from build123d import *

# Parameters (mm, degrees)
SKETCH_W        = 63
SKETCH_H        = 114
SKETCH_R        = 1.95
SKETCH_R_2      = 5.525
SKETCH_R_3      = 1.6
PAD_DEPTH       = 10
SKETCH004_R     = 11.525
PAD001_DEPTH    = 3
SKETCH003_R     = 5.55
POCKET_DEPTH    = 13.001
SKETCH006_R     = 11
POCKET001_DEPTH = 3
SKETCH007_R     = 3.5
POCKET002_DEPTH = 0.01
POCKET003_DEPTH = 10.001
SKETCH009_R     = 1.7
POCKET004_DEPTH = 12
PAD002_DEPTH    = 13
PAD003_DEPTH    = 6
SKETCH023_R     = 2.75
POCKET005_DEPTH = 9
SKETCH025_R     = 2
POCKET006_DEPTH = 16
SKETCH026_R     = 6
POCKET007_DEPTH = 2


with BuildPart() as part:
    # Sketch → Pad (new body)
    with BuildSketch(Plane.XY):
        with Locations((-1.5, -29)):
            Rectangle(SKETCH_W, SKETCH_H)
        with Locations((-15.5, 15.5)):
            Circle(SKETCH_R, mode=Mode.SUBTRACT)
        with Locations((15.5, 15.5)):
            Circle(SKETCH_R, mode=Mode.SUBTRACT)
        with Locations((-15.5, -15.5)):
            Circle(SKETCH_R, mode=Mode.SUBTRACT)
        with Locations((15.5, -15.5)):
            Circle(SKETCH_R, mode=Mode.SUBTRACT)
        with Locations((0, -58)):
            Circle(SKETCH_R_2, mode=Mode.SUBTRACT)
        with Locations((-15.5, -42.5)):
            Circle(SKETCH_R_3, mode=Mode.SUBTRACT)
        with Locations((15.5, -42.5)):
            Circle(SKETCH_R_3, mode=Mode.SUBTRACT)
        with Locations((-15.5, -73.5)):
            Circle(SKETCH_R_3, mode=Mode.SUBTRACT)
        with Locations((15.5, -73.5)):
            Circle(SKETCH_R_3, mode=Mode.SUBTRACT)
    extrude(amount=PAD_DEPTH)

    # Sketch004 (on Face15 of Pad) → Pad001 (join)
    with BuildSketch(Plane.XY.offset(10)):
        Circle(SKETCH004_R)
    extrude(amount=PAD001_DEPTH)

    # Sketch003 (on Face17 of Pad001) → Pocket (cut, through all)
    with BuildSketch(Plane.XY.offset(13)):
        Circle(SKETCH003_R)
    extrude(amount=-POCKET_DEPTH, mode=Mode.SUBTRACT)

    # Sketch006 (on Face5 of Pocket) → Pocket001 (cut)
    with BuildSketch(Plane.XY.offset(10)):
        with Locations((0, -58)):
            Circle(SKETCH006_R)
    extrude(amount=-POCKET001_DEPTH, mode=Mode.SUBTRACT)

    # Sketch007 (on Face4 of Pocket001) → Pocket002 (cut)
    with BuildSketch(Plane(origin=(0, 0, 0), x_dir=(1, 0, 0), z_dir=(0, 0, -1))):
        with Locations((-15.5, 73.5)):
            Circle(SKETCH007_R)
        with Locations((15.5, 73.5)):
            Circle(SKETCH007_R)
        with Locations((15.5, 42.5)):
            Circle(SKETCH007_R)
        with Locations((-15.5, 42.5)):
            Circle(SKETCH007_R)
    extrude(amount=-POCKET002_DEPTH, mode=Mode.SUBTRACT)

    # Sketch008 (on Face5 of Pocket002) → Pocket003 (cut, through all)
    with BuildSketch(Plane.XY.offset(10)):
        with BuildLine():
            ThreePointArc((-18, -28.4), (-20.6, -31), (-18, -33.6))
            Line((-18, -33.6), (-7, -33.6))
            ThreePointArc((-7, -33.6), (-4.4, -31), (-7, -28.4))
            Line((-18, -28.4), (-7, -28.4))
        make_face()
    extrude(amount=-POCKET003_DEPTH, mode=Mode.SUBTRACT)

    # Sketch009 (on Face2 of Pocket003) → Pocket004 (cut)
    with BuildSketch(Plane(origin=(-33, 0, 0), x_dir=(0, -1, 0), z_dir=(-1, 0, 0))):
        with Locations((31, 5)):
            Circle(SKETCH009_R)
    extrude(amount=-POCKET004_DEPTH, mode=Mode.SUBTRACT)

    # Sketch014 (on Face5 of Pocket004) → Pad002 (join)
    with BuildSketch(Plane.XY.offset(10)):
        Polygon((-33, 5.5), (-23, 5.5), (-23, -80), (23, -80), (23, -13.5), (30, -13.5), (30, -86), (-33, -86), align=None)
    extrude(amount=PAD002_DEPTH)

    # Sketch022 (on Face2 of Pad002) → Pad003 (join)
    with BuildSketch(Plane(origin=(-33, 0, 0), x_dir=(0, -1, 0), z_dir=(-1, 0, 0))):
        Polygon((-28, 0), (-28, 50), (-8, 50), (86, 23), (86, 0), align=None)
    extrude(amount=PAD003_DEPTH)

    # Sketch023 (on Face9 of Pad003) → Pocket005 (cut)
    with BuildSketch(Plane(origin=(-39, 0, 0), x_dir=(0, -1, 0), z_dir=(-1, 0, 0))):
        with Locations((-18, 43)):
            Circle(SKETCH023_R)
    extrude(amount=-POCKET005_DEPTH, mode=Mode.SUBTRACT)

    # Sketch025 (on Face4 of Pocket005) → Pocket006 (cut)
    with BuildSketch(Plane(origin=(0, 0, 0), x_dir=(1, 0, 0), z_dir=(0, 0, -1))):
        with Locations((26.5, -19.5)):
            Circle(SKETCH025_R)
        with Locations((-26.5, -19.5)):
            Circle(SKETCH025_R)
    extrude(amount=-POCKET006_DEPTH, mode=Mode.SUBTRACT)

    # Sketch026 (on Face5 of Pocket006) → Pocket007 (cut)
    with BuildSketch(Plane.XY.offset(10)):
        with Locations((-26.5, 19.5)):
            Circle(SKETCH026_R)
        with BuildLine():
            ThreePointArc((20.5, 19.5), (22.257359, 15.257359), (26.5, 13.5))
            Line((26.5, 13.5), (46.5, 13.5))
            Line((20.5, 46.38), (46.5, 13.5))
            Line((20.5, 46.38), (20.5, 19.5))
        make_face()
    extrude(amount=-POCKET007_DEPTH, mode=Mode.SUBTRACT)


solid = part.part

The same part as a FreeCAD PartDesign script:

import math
import FreeCAD as App
import Part
import Sketcher


def add_polygon(sketch, points):
    """Adds a closed chain of lines whose ends are joined by coincident constraints."""
    first, n = sketch.GeometryCount, len(points)
    for a, b in zip(points, points[1:] + points[:1]):
        sketch.addGeometry(Part.LineSegment(App.Vector(*a, 0), App.Vector(*b, 0)), False)
    for i in range(n):
        sketch.addConstraint(Sketcher.Constraint("Coincident", first + i, 2, first + (i + 1) % n, 1))

doc = App.newDocument("Part")
params = doc.addObject("Spreadsheet::Sheet", "Params")
for row, (alias, value) in enumerate([
    ("sketch1_diameter", "3.2 mm"),
    ("sketch1_diameter2", "3.9 mm"),
    ("sketch1_diameter3", "11.05 mm"),
    ("sketch1_width", "63 mm"),
    ("sketch1_height", "114 mm"),
    ("pad1_length", "10 mm"),
    ("sketch2_diameter", "23.05 mm"),
    ("pad2_length", "3 mm"),
    ("sketch3_diameter", "11.1 mm"),
    ("sketch4_diameter", "22 mm"),
    ("pocket2_length", "3 mm"),
    ("sketch5_diameter", "7 mm"),
    ("pocket3_length", "0.01 mm"),
    ("sketch6_radius", "2.6 mm"),
    ("sketch6_width", "11 mm"),
    ("sketch7_diameter", "3.4 mm"),
    ("pocket5_length", "12 mm"),
    ("sketch8_width", "10 mm"),
    ("sketch8_width2", "63 mm"),
    ("sketch8_width3", "7 mm"),
    ("sketch8_height", "91.5 mm"),
    ("sketch8_height2", "72.5 mm"),
    ("pad3_length", "13 mm"),
    ("sketch9_width", "114 mm"),
    ("sketch9_width2", "20 mm"),
    ("sketch9_height", "50 mm"),
    ("sketch9_height2", "23 mm"),
    ("pad4_length", "6 mm"),
    ("sketch10_diameter", "5.5 mm"),
    ("pocket6_length", "9 mm"),
    ("sketch11_diameter", "4 mm"),
    ("pocket7_length", "16 mm"),
    ("sketch12_diameter", "12 mm"),
    ("sketch12_width", "20 mm"),
    ("sketch12_height", "26.88 mm"),
    ("pocket8_length", "2 mm"),
], start=1):
    params.set(f"A{row}", alias)
    params.set(f"B{row}", "=" + value)
    params.setAlias(f"B{row}", alias)

body = doc.addObject("PartDesign::Body", "Body")

# Sketch on XY plane
sketch1 = body.newObject("Sketcher::SketchObject", "Sketch")
sketch1.AttachmentSupport = (doc.getObject("XY_Plane"), [""])
sketch1.MapMode = "FlatFace"
add_polygon(sketch1, [(-33, 28), (-33, -86), (30, -86), (30, 28)])  # lines 0-3
sketch1.addGeometry(Part.Circle(App.Vector(-15.5, -73.5, 0), App.Vector(0, 0, 1), 1.6), False)  # 4
sketch1.addGeometry(Part.Circle(App.Vector(-15.5, -42.5, 0), App.Vector(0, 0, 1), 1.6), False)  # 5
sketch1.addGeometry(Part.Circle(App.Vector(0, -58, 0), App.Vector(0, 0, 1), 5.525), False)  # 6
sketch1.addGeometry(Part.Circle(App.Vector(15.5, -73.5, 0), App.Vector(0, 0, 1), 1.6), False)  # 7
sketch1.addGeometry(Part.Circle(App.Vector(15.5, -42.5, 0), App.Vector(0, 0, 1), 1.6), False)  # 8
sketch1.addGeometry(Part.Circle(App.Vector(-15.5, -15.5, 0), App.Vector(0, 0, 1), 1.95), False)  # 9
sketch1.addGeometry(Part.Circle(App.Vector(-15.5, 15.5, 0), App.Vector(0, 0, 1), 1.95), False)  # 10
sketch1.addGeometry(Part.Circle(App.Vector(15.5, -15.5, 0), App.Vector(0, 0, 1), 1.95), False)  # 11
sketch1.addGeometry(Part.Circle(App.Vector(15.5, 15.5, 0), App.Vector(0, 0, 1), 1.95), False)  # 12
sketch1.addConstraint(Sketcher.Constraint("Vertical", 0))
sketch1.addConstraint(Sketcher.Constraint("Horizontal", 1))
sketch1.addConstraint(Sketcher.Constraint("Vertical", 2))
sketch1.addConstraint(Sketcher.Constraint("Horizontal", 3))
sketch1.addConstraint(Sketcher.Constraint("Equal", 4, 5))
sketch1.addConstraint(Sketcher.Constraint("Equal", 5, 7))
sketch1.addConstraint(Sketcher.Constraint("Equal", 7, 8))
sketch1.addConstraint(Sketcher.Constraint("Equal", 9, 10))
sketch1.addConstraint(Sketcher.Constraint("Equal", 10, 11))
sketch1.addConstraint(Sketcher.Constraint("Equal", 11, 12))
sketch1.addConstraint(Sketcher.Constraint("Symmetric", 10, 3, 11, 3, -1, 1))
sketch1.addConstraint(Sketcher.Constraint("Symmetric", 9, 3, 12, 3, -1, 1))
sketch1.addConstraint(Sketcher.Constraint("Symmetric", 4, 3, 7, 3, -2))
sketch1.addConstraint(Sketcher.Constraint("Symmetric", 5, 3, 8, 3, -2))
sketch1.addConstraint(Sketcher.Constraint("Symmetric", 9, 3, 11, 3, -2))
sketch1.addConstraint(Sketcher.Constraint("PointOnObject", 6, 3, -2))
sketch1.addConstraint(Sketcher.Constraint("Vertical", 4, 3, 5, 3))
sketch1.addConstraint(Sketcher.Constraint("Vertical", 5, 3, 9, 3))
sketch1.addConstraint(Sketcher.Constraint("Diameter", 4, 3.2))
sketch1.addConstraint(Sketcher.Constraint("Diameter", 9, 3.9))
sketch1.addConstraint(Sketcher.Constraint("Diameter", 6, 11.05))
sketch1.addConstraint(Sketcher.Constraint("DistanceX", 1, 1, 1, 2, 63.0))
sketch1.addConstraint(Sketcher.Constraint("DistanceY", 0, 2, 0, 1, 114.0))
sketch1.addConstraint(Sketcher.Constraint("DistanceY", 6, 3, -1, 1, 58.0))
sketch1.addConstraint(Sketcher.Constraint("DistanceX", 0, 2, -1, 1, 33.0))
sketch1.addConstraint(Sketcher.Constraint("DistanceY", 0, 2, -1, 1, 86.0))
sketch1.addConstraint(Sketcher.Constraint("DistanceY", 4, 3, 5, 3, 31.0))
sketch1.addConstraint(Sketcher.Constraint("DistanceX", 4, 3, 7, 3, 31.0))
sketch1.addConstraint(Sketcher.Constraint("DistanceY", 5, 3, 9, 3, 27.0))
sketch1.addConstraint(Sketcher.Constraint("DistanceY", 9, 3, 10, 3, 31.0))
sketch1.setExpression("Constraints[22]", "Params.sketch1_diameter")
sketch1.setExpression("Constraints[23]", "Params.sketch1_diameter2")
sketch1.setExpression("Constraints[24]", "Params.sketch1_diameter3")
sketch1.setExpression("Constraints[25]", "Params.sketch1_width")
sketch1.setExpression("Constraints[26]", "Params.sketch1_height")
pad1 = body.newObject("PartDesign::Pad", "Pad")
pad1.Profile = sketch1
pad1.setExpression("Length", "Params.pad1_length")

# Sketch on XY plane
sketch2 = body.newObject("Sketcher::SketchObject", "Sketch001")
sketch2.AttachmentSupport = (doc.getObject("XY_Plane"), [""])
sketch2.MapMode = "FlatFace"
sketch2.AttachmentOffset = App.Placement(App.Vector(0, 0, 10), App.Rotation())
sketch2.addGeometry(Part.Circle(App.Vector(0, 0, 0), App.Vector(0, 0, 1), 11.525), False)
sketch2.addConstraint(Sketcher.Constraint("Coincident", 0, 3, -1, 1))
sketch2.addConstraint(Sketcher.Constraint("Diameter", 0, 23.05))
sketch2.setExpression("Constraints[1]", "Params.sketch2_diameter")
pad2 = body.newObject("PartDesign::Pad", "Pad001")
pad2.Profile = sketch2
pad2.setExpression("Length", "Params.pad2_length")

# Sketch on XY plane
sketch3 = body.newObject("Sketcher::SketchObject", "Sketch002")
sketch3.AttachmentSupport = (doc.getObject("XY_Plane"), [""])
sketch3.MapMode = "FlatFace"
sketch3.AttachmentOffset = App.Placement(App.Vector(0, 0, 13), App.Rotation())
sketch3.addGeometry(Part.Circle(App.Vector(0, 0, 0), App.Vector(0, 0, 1), 5.55), False)
sketch3.addConstraint(Sketcher.Constraint("Coincident", 0, 3, -1, 1))
sketch3.addConstraint(Sketcher.Constraint("Diameter", 0, 11.1))
sketch3.setExpression("Constraints[1]", "Params.sketch3_diameter")
pocket1 = body.newObject("PartDesign::Pocket", "Pocket")
pocket1.Profile = sketch3
pocket1.Type = "ThroughAll"

# Sketch on XY plane
sketch4 = body.newObject("Sketcher::SketchObject", "Sketch003")
sketch4.AttachmentSupport = (doc.getObject("XY_Plane"), [""])
sketch4.MapMode = "FlatFace"
sketch4.AttachmentOffset = App.Placement(App.Vector(0, 0, 10), App.Rotation())
sketch4.addGeometry(Part.Circle(App.Vector(0, -58, 0), App.Vector(0, 0, 1), 11), False)
sketch4.addConstraint(Sketcher.Constraint("PointOnObject", 0, 3, -2))
sketch4.addConstraint(Sketcher.Constraint("Diameter", 0, 22.0))
sketch4.addConstraint(Sketcher.Constraint("DistanceY", 0, 3, -1, 1, 58.0))
sketch4.setExpression("Constraints[1]", "Params.sketch4_diameter")
pocket2 = body.newObject("PartDesign::Pocket", "Pocket001")
pocket2.Profile = sketch4
pocket2.setExpression("Length", "Params.pocket2_length")

# Sketch on XY plane
sketch5 = body.newObject("Sketcher::SketchObject", "Sketch004")
sketch5.AttachmentSupport = (doc.getObject("XY_Plane"), [""])
sketch5.MapMode = "FlatFace"
sketch5.addGeometry(Part.Circle(App.Vector(-15.5, -73.5, 0), App.Vector(0, 0, 1), 3.5), False)
sketch5.addGeometry(Part.Circle(App.Vector(15.5, -73.5, 0), App.Vector(0, 0, 1), 3.5), False)
sketch5.addGeometry(Part.Circle(App.Vector(15.5, -42.5, 0), App.Vector(0, 0, 1), 3.5), False)
sketch5.addGeometry(Part.Circle(App.Vector(-15.5, -42.5, 0), App.Vector(0, 0, 1), 3.5), False)
sketch5.addConstraint(Sketcher.Constraint("Equal", 0, 1))
sketch5.addConstraint(Sketcher.Constraint("Equal", 1, 2))
sketch5.addConstraint(Sketcher.Constraint("Equal", 2, 3))
sketch5.addConstraint(Sketcher.Constraint("Symmetric", 0, 3, 1, 3, -2))
sketch5.addConstraint(Sketcher.Constraint("Symmetric", 2, 3, 3, 3, -2))
sketch5.addConstraint(Sketcher.Constraint("Vertical", 1, 3, 2, 3))
sketch5.addConstraint(Sketcher.Constraint("Diameter", 0, 7.0))
sketch5.addConstraint(Sketcher.Constraint("DistanceX", 0, 3, 1, 3, 31.0))
sketch5.addConstraint(Sketcher.Constraint("DistanceY", 1, 3, 2, 3, 31.0))
sketch5.addConstraint(Sketcher.Constraint("DistanceY", 0, 3, -1, 1, 73.5))
sketch5.setExpression("Constraints[6]", "Params.sketch5_diameter")
pocket3 = body.newObject("PartDesign::Pocket", "Pocket002")
pocket3.Profile = sketch5
pocket3.setExpression("Length", "Params.pocket3_length")
pocket3.Reversed = True

# Sketch on XY plane
sketch6 = body.newObject("Sketcher::SketchObject", "Sketch005")
sketch6.AttachmentSupport = (doc.getObject("XY_Plane"), [""])
sketch6.MapMode = "FlatFace"
sketch6.AttachmentOffset = App.Placement(App.Vector(0, 0, 10), App.Rotation())
sketch6.addGeometry(Part.ArcOfCircle(Part.Circle(App.Vector(-18, -31, 0), App.Vector(0, 0, 1), 2.6), math.radians(90), math.radians(270)), False)
sketch6.addGeometry(Part.LineSegment(App.Vector(-18, -33.6, 0), App.Vector(-7, -33.6, 0)), False)
sketch6.addGeometry(Part.ArcOfCircle(Part.Circle(App.Vector(-7, -31, 0), App.Vector(0, 0, 1), 2.6), math.radians(-90), math.radians(90)), False)
sketch6.addGeometry(Part.LineSegment(App.Vector(-7, -28.4, 0), App.Vector(-18, -28.4, 0)), False)
sketch6.addConstraint(Sketcher.Constraint("Tangent", 0, 2, 1, 1))
sketch6.addConstraint(Sketcher.Constraint("Tangent", 1, 2, 2, 1))
sketch6.addConstraint(Sketcher.Constraint("Tangent", 2, 2, 3, 1))
sketch6.addConstraint(Sketcher.Constraint("Tangent", 3, 2, 0, 1))
sketch6.addConstraint(Sketcher.Constraint("Horizontal", 1))
sketch6.addConstraint(Sketcher.Constraint("Horizontal", 3))
sketch6.addConstraint(Sketcher.Constraint("Radius", 0, 2.6))
sketch6.addConstraint(Sketcher.Constraint("DistanceX", 1, 1, 1, 2, 11.0))
sketch6.addConstraint(Sketcher.Constraint("DistanceX", 0, 3, -1, 1, 18.0))
sketch6.addConstraint(Sketcher.Constraint("DistanceY", 0, 3, -1, 1, 31.0))
sketch6.setExpression("Constraints[6]", "Params.sketch6_radius")
sketch6.setExpression("Constraints[7]", "Params.sketch6_width")
pocket4 = body.newObject("PartDesign::Pocket", "Pocket003")
pocket4.Profile = sketch6
pocket4.Type = "ThroughAll"

# Sketch on YZ plane
sketch7 = body.newObject("Sketcher::SketchObject", "Sketch006")
sketch7.AttachmentSupport = (doc.getObject("YZ_Plane"), [""])
sketch7.MapMode = "FlatFace"
sketch7.AttachmentOffset = App.Placement(App.Vector(0, 0, -33), App.Rotation())
sketch7.addGeometry(Part.Circle(App.Vector(-31, 5, 0), App.Vector(0, 0, 1), 1.7), False)
sketch7.addConstraint(Sketcher.Constraint("Diameter", 0, 3.4))
sketch7.addConstraint(Sketcher.Constraint("DistanceX", 0, 3, -1, 1, 31.0))
sketch7.addConstraint(Sketcher.Constraint("DistanceY", -1, 1, 0, 3, 5.0))
sketch7.setExpression("Constraints[0]", "Params.sketch7_diameter")
pocket5 = body.newObject("PartDesign::Pocket", "Pocket004")
pocket5.Profile = sketch7
pocket5.setExpression("Length", "Params.pocket5_length")
pocket5.Reversed = True

# Sketch on XY plane
sketch8 = body.newObject("Sketcher::SketchObject", "Sketch007")
sketch8.AttachmentSupport = (doc.getObject("XY_Plane"), [""])
sketch8.MapMode = "FlatFace"
sketch8.AttachmentOffset = App.Placement(App.Vector(0, 0, 10), App.Rotation())
add_polygon(sketch8, [(-23, 5.5), (-33, 5.5), (-33, -86), (30, -86), (30, -13.5), (23, -13.5), (23, -80), (-23, -80)])  # lines 0-7
sketch8.addConstraint(Sketcher.Constraint("Horizontal", 0))
sketch8.addConstraint(Sketcher.Constraint("Vertical", 1))
sketch8.addConstraint(Sketcher.Constraint("Horizontal", 2))
sketch8.addConstraint(Sketcher.Constraint("Vertical", 3))
sketch8.addConstraint(Sketcher.Constraint("Horizontal", 4))
sketch8.addConstraint(Sketcher.Constraint("Vertical", 5))
sketch8.addConstraint(Sketcher.Constraint("Horizontal", 6))
sketch8.addConstraint(Sketcher.Constraint("Vertical", 7))
sketch8.addConstraint(Sketcher.Constraint("DistanceX", 0, 2, 0, 1, 10.0))
sketch8.addConstraint(Sketcher.Constraint("DistanceX", 2, 1, 2, 2, 63.0))
sketch8.addConstraint(Sketcher.Constraint("DistanceX", 4, 2, 4, 1, 7.0))
sketch8.addConstraint(Sketcher.Constraint("DistanceY", 1, 2, 1, 1, 91.5))
sketch8.addConstraint(Sketcher.Constraint("DistanceY", 3, 1, 3, 2, 72.5))
sketch8.addConstraint(Sketcher.Constraint("DistanceY", 5, 2, 5, 1, 66.5))
sketch8.addConstraint(Sketcher.Constraint("DistanceX", 0, 2, -1, 1, 33.0))
sketch8.addConstraint(Sketcher.Constraint("DistanceY", 1, 2, -1, 1, 86.0))
sketch8.setExpression("Constraints[16]", "Params.sketch8_width")
sketch8.setExpression("Constraints[17]", "Params.sketch8_width2")
sketch8.setExpression("Constraints[18]", "Params.sketch8_width3")
sketch8.setExpression("Constraints[19]", "Params.sketch8_height")
sketch8.setExpression("Constraints[20]", "Params.sketch8_height2")
pad3 = body.newObject("PartDesign::Pad", "Pad002")
pad3.Profile = sketch8
pad3.setExpression("Length", "Params.pad3_length")

# Sketch on YZ plane
sketch9 = body.newObject("Sketcher::SketchObject", "Sketch008")
sketch9.AttachmentSupport = (doc.getObject("YZ_Plane"), [""])
sketch9.MapMode = "FlatFace"
sketch9.AttachmentOffset = App.Placement(App.Vector(0, 0, -33), App.Rotation())
add_polygon(sketch9, [(28, 50), (28, 0), (-86, 0), (-86, 23), (8, 50)])  # lines 0-4
sketch9.addConstraint(Sketcher.Constraint("Vertical", 0))
sketch9.addConstraint(Sketcher.Constraint("Horizontal", 1))
sketch9.addConstraint(Sketcher.Constraint("Vertical", 2))
sketch9.addConstraint(Sketcher.Constraint("Horizontal", 4))
sketch9.addConstraint(Sketcher.Constraint("PointOnObject", 0, 2, -1))
sketch9.addConstraint(Sketcher.Constraint("DistanceX", 1, 2, 1, 1, 114.0))
sketch9.addConstraint(Sketcher.Constraint("DistanceX", 4, 1, 4, 2, 20.0))
sketch9.addConstraint(Sketcher.Constraint("DistanceY", 0, 2, 0, 1, 50.0))
sketch9.addConstraint(Sketcher.Constraint("DistanceY", 2, 1, 2, 2, 23.0))
sketch9.addConstraint(Sketcher.Constraint("DistanceX", -1, 1, 0, 2, 28.0))
sketch9.setExpression("Constraints[10]", "Params.sketch9_width")
sketch9.setExpression("Constraints[11]", "Params.sketch9_width2")
sketch9.setExpression("Constraints[12]", "Params.sketch9_height")
sketch9.setExpression("Constraints[13]", "Params.sketch9_height2")
pad4 = body.newObject("PartDesign::Pad", "Pad003")
pad4.Profile = sketch9
pad4.setExpression("Length", "Params.pad4_length")
pad4.Reversed = True

# Sketch on YZ plane
sketch10 = body.newObject("Sketcher::SketchObject", "Sketch009")
sketch10.AttachmentSupport = (doc.getObject("YZ_Plane"), [""])
sketch10.MapMode = "FlatFace"
sketch10.AttachmentOffset = App.Placement(App.Vector(0, 0, -39), App.Rotation())
sketch10.addGeometry(Part.Circle(App.Vector(18, 43, 0), App.Vector(0, 0, 1), 2.75), False)
sketch10.addConstraint(Sketcher.Constraint("Diameter", 0, 5.5))
sketch10.addConstraint(Sketcher.Constraint("DistanceX", -1, 1, 0, 3, 18.0))
sketch10.addConstraint(Sketcher.Constraint("DistanceY", -1, 1, 0, 3, 43.0))
sketch10.setExpression("Constraints[0]", "Params.sketch10_diameter")
pocket6 = body.newObject("PartDesign::Pocket", "Pocket005")
pocket6.Profile = sketch10
pocket6.setExpression("Length", "Params.pocket6_length")
pocket6.Reversed = True

# Sketch on XY plane
sketch11 = body.newObject("Sketcher::SketchObject", "Sketch010")
sketch11.AttachmentSupport = (doc.getObject("XY_Plane"), [""])
sketch11.MapMode = "FlatFace"
sketch11.addGeometry(Part.Circle(App.Vector(26.5, 19.5, 0), App.Vector(0, 0, 1), 2), False)
sketch11.addGeometry(Part.Circle(App.Vector(-26.5, 19.5, 0), App.Vector(0, 0, 1), 2), False)
sketch11.addConstraint(Sketcher.Constraint("Equal", 0, 1))
sketch11.addConstraint(Sketcher.Constraint("Symmetric", 0, 3, 1, 3, -2))
sketch11.addConstraint(Sketcher.Constraint("Diameter", 0, 4.0))
sketch11.addConstraint(Sketcher.Constraint("DistanceX", 1, 3, 0, 3, 53.0))
sketch11.addConstraint(Sketcher.Constraint("DistanceY", -1, 1, 0, 3, 19.5))
sketch11.setExpression("Constraints[2]", "Params.sketch11_diameter")
pocket7 = body.newObject("PartDesign::Pocket", "Pocket006")
pocket7.Profile = sketch11
pocket7.setExpression("Length", "Params.pocket7_length")
pocket7.Reversed = True

# Sketch on XY plane
sketch12 = body.newObject("Sketcher::SketchObject", "Sketch011")
sketch12.AttachmentSupport = (doc.getObject("XY_Plane"), [""])
sketch12.MapMode = "FlatFace"
sketch12.AttachmentOffset = App.Placement(App.Vector(0, 0, 10), App.Rotation())
sketch12.addGeometry(Part.Circle(App.Vector(-26.5, 19.5, 0), App.Vector(0, 0, 1), 6), False)
sketch12.addGeometry(Part.ArcOfCircle(Part.Circle(App.Vector(26.499999, 19.499999, 0), App.Vector(0, 0, 1), 5.999999), math.radians(179.99999), math.radians(270.00001)), False)
sketch12.addGeometry(Part.LineSegment(App.Vector(26.5, 13.5, 0), App.Vector(46.5, 13.5, 0)), False)
sketch12.addGeometry(Part.LineSegment(App.Vector(46.5, 13.5, 0), App.Vector(20.5, 46.38, 0)), False)
sketch12.addGeometry(Part.LineSegment(App.Vector(20.5, 46.38, 0), App.Vector(20.5, 19.5, 0)), False)
sketch12.addConstraint(Sketcher.Constraint("Tangent", 1, 2, 2, 1))
sketch12.addConstraint(Sketcher.Constraint("Coincident", 2, 2, 3, 1))
sketch12.addConstraint(Sketcher.Constraint("Coincident", 3, 2, 4, 1))
sketch12.addConstraint(Sketcher.Constraint("Tangent", 4, 2, 1, 1))
sketch12.addConstraint(Sketcher.Constraint("Horizontal", 2))
sketch12.addConstraint(Sketcher.Constraint("Vertical", 4))
sketch12.addConstraint(Sketcher.Constraint("Equal", 0, 1))
sketch12.addConstraint(Sketcher.Constraint("Symmetric", 0, 3, 1, 3, -2))
sketch12.addConstraint(Sketcher.Constraint("Diameter", 0, 12.0))
sketch12.addConstraint(Sketcher.Constraint("DistanceX", 2, 1, 2, 2, 20.0))
sketch12.addConstraint(Sketcher.Constraint("DistanceX", 0, 3, 1, 3, 52.999999))
sketch12.addConstraint(Sketcher.Constraint("DistanceY", 4, 2, 4, 1, 26.88))
sketch12.addConstraint(Sketcher.Constraint("DistanceY", -1, 1, 0, 3, 19.5))
sketch12.setExpression("Constraints[8]", "Params.sketch12_diameter")
sketch12.setExpression("Constraints[9]", "Params.sketch12_width")
sketch12.setExpression("Constraints[11]", "Params.sketch12_height")
pocket8 = body.newObject("PartDesign::Pocket", "Pocket007")
pocket8.Profile = sketch12
pocket8.setExpression("Length", "Params.pocket8_length")

doc.recompute()
